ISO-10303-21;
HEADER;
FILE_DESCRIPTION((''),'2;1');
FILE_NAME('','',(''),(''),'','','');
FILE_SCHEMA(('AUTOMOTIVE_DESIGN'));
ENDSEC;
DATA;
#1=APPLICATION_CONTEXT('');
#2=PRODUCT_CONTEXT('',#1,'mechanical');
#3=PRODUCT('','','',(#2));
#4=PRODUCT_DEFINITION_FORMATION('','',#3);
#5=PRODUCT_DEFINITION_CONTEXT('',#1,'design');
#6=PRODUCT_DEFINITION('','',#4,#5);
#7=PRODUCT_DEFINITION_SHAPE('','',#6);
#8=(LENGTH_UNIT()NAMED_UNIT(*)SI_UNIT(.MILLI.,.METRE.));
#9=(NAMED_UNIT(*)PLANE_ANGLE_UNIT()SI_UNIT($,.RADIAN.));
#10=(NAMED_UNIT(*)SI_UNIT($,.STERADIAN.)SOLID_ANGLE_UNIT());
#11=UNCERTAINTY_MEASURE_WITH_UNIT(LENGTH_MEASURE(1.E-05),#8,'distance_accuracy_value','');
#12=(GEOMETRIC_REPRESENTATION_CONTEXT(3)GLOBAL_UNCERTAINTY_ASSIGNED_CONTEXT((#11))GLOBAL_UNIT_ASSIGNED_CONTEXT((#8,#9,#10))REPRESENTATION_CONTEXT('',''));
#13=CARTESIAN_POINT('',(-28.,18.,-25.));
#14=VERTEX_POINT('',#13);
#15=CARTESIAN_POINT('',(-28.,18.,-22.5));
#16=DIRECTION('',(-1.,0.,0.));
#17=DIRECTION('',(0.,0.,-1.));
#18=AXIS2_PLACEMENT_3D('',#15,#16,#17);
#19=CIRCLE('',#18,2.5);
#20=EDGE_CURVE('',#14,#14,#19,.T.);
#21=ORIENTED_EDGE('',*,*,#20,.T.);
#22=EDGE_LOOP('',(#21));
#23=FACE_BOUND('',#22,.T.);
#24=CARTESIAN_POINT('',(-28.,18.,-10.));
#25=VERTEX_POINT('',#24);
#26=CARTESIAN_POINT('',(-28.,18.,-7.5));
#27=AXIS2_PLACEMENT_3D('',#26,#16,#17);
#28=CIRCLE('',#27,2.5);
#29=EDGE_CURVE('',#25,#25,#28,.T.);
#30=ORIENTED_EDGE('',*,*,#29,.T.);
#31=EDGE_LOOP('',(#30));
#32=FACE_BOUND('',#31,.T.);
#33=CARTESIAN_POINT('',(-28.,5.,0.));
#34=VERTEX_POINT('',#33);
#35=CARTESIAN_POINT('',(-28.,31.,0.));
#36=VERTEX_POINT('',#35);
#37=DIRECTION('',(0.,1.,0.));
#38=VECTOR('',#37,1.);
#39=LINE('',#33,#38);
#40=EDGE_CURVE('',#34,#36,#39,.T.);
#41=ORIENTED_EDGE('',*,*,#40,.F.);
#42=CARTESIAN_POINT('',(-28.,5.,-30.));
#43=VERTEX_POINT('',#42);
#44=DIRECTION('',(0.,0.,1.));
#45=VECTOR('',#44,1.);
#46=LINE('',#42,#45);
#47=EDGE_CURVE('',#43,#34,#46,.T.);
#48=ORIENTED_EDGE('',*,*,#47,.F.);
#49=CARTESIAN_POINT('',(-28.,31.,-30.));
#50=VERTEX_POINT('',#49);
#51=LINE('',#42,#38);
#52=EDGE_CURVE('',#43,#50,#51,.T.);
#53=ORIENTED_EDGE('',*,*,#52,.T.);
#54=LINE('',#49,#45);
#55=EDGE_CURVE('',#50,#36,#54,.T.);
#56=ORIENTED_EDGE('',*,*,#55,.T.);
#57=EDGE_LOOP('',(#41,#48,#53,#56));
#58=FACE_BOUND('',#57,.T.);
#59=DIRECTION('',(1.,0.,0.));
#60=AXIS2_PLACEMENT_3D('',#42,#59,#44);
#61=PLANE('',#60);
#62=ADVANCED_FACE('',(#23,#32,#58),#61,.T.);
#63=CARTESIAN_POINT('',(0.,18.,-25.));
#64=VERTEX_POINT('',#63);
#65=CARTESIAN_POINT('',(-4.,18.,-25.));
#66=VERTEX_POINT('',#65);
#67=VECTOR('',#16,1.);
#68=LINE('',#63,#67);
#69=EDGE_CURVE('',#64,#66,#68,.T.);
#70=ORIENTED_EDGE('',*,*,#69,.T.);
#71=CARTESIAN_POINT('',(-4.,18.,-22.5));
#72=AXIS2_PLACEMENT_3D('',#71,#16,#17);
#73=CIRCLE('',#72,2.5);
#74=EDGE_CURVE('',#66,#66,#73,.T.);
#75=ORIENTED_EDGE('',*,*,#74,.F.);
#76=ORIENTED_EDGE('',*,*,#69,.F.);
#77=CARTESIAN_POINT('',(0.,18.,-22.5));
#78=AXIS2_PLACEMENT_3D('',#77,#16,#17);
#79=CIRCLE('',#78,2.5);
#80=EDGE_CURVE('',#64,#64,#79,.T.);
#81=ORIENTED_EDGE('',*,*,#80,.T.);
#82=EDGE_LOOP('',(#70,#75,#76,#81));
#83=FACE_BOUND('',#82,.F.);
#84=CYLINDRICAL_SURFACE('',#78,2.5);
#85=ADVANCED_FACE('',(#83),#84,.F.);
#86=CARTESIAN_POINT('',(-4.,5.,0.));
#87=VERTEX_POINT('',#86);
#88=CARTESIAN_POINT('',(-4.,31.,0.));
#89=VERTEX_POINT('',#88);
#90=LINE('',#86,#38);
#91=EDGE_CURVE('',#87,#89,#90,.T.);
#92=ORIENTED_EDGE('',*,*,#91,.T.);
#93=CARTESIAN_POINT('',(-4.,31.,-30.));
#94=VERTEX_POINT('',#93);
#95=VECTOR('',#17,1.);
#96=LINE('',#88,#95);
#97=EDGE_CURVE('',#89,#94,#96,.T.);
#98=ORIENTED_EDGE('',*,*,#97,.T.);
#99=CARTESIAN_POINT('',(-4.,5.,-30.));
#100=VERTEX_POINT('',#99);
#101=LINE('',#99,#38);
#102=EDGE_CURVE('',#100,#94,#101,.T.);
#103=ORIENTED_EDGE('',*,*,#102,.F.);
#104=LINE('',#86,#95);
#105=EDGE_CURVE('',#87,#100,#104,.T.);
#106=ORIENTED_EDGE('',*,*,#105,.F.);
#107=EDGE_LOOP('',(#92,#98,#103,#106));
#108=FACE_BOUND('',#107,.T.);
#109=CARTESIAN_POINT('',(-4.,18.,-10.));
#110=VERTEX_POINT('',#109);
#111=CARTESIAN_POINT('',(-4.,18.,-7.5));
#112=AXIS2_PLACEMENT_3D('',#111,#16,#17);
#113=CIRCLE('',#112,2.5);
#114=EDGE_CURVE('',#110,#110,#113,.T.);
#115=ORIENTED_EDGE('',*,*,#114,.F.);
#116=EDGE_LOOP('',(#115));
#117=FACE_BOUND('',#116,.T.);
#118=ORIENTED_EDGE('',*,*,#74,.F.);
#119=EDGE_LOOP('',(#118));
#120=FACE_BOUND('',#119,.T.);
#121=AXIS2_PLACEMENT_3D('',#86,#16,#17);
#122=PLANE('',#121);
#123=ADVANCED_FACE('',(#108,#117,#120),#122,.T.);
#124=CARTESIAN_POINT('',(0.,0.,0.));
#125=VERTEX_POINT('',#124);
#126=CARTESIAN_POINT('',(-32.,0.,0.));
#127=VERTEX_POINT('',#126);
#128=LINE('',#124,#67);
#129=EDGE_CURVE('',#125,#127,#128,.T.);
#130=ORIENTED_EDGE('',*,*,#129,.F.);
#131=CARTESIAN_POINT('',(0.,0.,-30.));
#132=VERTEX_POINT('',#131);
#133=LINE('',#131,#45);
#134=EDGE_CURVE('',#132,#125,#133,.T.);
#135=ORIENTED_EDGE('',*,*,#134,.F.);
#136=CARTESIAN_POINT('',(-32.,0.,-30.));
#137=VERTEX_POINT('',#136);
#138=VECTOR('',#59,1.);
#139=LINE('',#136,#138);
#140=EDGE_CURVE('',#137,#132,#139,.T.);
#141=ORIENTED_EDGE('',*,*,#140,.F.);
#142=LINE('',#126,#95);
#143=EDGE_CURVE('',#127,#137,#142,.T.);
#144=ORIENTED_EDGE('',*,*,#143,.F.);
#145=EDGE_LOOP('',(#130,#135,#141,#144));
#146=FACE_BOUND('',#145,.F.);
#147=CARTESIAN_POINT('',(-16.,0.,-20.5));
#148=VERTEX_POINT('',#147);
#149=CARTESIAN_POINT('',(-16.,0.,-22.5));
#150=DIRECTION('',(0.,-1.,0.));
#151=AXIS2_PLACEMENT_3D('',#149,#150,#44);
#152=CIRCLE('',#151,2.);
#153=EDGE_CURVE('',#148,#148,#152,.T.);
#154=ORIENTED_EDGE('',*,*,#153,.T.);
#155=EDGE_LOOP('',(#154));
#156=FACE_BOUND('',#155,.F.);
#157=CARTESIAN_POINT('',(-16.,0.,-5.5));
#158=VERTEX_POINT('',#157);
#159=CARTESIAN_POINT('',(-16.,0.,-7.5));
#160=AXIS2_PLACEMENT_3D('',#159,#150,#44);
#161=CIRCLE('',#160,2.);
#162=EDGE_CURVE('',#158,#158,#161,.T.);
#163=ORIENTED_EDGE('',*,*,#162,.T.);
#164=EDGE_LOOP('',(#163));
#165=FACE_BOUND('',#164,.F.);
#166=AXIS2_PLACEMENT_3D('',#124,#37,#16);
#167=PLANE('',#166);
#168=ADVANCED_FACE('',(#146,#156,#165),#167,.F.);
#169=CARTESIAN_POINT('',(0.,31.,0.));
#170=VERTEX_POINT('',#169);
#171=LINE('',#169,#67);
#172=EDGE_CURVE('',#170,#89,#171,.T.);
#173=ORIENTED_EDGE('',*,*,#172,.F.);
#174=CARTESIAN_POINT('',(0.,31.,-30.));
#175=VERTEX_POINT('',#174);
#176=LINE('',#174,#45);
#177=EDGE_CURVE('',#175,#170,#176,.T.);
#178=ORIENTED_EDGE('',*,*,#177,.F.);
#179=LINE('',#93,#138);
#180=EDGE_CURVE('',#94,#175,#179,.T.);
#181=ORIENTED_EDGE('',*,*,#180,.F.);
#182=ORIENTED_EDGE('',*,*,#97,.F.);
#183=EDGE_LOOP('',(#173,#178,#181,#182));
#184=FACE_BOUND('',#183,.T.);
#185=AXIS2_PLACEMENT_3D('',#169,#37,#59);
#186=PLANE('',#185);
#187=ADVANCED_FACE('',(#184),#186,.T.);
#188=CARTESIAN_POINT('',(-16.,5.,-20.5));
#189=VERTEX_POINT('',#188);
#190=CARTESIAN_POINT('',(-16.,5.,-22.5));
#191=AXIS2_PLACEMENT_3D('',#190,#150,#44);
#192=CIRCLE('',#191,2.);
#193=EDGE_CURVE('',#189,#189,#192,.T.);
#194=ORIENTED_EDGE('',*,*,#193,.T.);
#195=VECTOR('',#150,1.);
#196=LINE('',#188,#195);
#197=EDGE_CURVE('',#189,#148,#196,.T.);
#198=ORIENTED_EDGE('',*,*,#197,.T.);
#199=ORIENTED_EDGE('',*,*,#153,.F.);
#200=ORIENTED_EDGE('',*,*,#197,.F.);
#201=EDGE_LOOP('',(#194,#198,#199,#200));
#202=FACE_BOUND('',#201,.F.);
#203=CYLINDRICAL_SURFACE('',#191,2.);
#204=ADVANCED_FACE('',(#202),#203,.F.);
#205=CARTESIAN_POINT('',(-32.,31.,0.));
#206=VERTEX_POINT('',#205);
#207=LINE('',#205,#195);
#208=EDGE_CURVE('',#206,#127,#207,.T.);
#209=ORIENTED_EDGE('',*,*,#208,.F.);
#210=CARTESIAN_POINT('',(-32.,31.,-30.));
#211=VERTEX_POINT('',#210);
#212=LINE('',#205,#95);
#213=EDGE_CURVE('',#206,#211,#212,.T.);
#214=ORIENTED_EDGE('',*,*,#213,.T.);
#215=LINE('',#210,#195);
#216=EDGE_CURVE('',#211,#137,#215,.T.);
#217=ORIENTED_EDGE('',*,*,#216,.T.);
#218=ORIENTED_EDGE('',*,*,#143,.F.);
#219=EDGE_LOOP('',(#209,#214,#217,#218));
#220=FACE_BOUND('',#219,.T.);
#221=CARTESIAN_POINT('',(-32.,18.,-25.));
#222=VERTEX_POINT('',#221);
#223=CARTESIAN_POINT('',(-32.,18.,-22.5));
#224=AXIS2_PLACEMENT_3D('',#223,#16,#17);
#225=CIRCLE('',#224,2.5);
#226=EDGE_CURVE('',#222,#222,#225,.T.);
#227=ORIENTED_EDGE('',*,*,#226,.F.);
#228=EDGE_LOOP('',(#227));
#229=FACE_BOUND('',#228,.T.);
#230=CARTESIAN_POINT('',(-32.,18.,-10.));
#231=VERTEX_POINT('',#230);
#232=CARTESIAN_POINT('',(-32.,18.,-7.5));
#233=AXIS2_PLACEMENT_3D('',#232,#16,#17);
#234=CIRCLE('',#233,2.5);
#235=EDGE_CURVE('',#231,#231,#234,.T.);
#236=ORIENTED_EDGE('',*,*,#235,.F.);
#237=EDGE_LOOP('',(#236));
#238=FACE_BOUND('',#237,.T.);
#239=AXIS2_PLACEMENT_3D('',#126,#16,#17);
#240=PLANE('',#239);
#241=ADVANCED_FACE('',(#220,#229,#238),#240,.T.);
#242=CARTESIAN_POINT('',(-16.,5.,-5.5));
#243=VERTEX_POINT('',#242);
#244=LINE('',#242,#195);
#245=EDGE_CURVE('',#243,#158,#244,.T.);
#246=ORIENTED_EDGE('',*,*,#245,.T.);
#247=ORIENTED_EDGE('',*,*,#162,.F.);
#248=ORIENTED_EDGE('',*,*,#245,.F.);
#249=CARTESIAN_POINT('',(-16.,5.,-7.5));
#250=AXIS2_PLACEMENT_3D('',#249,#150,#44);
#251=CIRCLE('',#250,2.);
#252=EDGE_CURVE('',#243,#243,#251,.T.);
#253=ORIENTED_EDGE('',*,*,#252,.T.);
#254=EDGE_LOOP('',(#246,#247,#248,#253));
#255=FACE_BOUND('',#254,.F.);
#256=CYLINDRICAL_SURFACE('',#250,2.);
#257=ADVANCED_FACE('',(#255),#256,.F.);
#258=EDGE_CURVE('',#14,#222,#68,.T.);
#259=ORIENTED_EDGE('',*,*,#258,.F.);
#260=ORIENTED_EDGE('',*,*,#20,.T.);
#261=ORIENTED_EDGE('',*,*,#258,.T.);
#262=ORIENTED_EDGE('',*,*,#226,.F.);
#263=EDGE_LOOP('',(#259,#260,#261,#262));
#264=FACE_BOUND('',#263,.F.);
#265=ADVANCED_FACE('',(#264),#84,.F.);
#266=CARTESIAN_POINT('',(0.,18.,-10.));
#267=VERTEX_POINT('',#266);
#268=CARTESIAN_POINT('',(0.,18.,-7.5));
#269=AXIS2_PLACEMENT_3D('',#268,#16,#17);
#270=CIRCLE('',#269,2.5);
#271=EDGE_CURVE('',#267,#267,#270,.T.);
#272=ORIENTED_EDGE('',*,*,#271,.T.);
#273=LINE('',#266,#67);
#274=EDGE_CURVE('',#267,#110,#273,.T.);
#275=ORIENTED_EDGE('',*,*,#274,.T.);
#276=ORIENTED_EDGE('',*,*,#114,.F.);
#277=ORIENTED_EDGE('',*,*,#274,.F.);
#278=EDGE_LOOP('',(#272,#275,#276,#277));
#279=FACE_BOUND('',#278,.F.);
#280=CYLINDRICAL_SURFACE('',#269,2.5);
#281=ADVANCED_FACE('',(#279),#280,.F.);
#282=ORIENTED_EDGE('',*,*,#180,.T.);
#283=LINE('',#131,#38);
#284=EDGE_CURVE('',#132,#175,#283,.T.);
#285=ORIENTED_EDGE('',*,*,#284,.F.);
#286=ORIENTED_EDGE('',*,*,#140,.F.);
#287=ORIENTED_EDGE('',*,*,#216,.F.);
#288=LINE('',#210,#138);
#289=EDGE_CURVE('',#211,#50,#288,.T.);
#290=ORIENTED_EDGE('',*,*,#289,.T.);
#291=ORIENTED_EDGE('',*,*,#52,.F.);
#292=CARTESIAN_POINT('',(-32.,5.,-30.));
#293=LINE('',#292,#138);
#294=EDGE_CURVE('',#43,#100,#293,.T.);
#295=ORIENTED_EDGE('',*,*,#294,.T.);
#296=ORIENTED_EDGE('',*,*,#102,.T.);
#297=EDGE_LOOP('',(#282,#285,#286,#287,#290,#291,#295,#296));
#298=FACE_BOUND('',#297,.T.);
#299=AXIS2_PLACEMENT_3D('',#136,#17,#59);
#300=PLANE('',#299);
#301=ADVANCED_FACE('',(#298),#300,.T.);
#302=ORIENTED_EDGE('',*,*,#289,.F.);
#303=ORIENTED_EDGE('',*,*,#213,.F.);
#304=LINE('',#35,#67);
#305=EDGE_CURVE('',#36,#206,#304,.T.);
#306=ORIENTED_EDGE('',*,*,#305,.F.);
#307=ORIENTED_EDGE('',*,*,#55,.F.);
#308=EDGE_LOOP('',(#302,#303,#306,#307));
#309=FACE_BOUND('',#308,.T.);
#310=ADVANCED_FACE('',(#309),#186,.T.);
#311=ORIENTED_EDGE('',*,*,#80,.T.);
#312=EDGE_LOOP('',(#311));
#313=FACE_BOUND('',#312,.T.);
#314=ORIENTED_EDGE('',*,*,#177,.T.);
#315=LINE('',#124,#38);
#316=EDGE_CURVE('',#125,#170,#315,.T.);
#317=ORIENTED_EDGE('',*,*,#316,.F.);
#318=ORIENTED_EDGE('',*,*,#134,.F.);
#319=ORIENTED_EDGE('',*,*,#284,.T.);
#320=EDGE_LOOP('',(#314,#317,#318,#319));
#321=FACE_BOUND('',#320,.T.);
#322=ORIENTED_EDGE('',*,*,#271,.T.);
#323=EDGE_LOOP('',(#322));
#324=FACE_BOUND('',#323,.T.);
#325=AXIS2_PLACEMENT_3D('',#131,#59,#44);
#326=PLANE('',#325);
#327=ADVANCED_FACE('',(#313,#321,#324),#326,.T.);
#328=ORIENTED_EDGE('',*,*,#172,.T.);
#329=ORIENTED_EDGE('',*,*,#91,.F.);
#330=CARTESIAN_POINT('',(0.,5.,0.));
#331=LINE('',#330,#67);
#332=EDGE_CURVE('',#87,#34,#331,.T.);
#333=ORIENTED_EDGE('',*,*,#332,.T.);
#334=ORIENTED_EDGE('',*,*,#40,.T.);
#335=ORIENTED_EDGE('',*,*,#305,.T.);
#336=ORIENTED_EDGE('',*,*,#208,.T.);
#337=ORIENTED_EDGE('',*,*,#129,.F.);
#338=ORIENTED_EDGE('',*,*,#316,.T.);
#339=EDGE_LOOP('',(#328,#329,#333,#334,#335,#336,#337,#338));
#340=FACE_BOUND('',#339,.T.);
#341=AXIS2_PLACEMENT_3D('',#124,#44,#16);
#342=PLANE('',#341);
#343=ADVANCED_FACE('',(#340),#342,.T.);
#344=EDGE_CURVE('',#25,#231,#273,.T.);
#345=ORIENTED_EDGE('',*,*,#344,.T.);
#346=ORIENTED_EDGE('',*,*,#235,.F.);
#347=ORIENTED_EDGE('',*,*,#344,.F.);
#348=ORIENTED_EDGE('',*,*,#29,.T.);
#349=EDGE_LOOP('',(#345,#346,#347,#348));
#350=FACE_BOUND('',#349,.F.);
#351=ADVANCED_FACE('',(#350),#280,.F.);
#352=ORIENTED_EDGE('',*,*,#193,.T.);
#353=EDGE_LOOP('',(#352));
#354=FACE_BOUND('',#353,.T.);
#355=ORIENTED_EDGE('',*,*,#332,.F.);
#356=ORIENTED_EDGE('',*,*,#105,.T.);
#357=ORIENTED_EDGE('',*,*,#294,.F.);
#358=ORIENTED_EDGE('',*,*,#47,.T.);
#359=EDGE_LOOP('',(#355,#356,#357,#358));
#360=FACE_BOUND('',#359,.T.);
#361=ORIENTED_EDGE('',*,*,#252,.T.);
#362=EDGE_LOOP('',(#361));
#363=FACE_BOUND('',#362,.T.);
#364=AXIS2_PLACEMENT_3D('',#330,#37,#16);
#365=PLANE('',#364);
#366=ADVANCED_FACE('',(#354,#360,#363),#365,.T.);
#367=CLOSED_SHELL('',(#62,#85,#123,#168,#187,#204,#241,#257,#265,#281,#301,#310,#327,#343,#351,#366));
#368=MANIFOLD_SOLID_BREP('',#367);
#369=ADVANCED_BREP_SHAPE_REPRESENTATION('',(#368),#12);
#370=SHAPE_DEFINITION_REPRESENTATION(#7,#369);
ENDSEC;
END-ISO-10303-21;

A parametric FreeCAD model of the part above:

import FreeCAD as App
import Part
import Sketcher
Q = App.Units.Quantity


def add_polygon(sketch, points):
    """Adds a closed chain of lines whose ends are joined by coincident constraints."""
    first, n = sketch.GeometryCount, len(points)
    for a, b in zip(points, points[1:] + points[:1]):
        sketch.addGeometry(Part.LineSegment(App.Vector(*a, 0), App.Vector(*b, 0)), False)
    for i in range(n):
        sketch.addConstraint(Sketcher.Constraint("Coincident", first + i, 2, first + (i + 1) % n, 1))

doc = App.newDocument("Part")
body = doc.addObject("PartDesign::Body", "Body")

# Sketch on XZ plane
sketch1 = doc.addObject("Sketcher::SketchObject", "Sketch")
body.addObject(sketch1)
sketch1.AttachmentSupport = (doc.XZ_Plane, [""])
sketch1.MapMode = "FlatFace"
add_polygon(sketch1, [(-32, 0), (0, 0), (0, -30), (-32, -30)])  # lines 0-3
sketch1.addConstraint([
    Sketcher.Constraint("Horizontal", 0),
    Sketcher.Constraint("Vertical", 1),
    Sketcher.Constraint("Horizontal", 2),
    Sketcher.Constraint("Vertical", 3),
    Sketcher.Constraint("Coincident", 0, 2, -1, 1),
    Sketcher.Constraint("DistanceX", 0, 1, 0, 2, Q("32 mm")),
    Sketcher.Constraint("DistanceY", 1, 2, 1, 1, Q("30 mm")),
])
pad1 = doc.addObject("PartDesign::Pad", "Pad")
body.addObject(pad1)
pad1.Profile = sketch1
pad1.Length = 5
pad1.Reversed = True

# Sketch on XZ plane
sketch2 = doc.addObject("Sketcher::SketchObject", "Sketch001")
body.addObject(sketch2)
sketch2.AttachmentSupport = (doc.XZ_Plane, [""])
sketch2.MapMode = "FlatFace"
sketch2.AttachmentOffset = App.Placement(App.Vector(0, 0, -5), App.Rotation())
add_polygon(sketch2, [(-28, -30), (-32, -30), (-32, 0), (-28, 0)])  # lines 0-3
add_polygon(sketch2, [(0, -30), (-4, -30), (-4, 0), (0, 0)])  # lines 4-7
sketch2.addConstraint([
    Sketcher.Constraint("Horizontal", 0),
    Sketcher.Constraint("Vertical", 1),
    Sketcher.Constraint("Horizontal", 2),
    Sketcher.Constraint("Vertical", 3),
    Sketcher.Constraint("Horizontal", 4),
    Sketcher.Constraint("Vertical", 5),
    Sketcher.Constraint("Horizontal", 6),
    Sketcher.Constraint("Vertical", 7),
    Sketcher.Constraint("Coincident", 6, 2, -1, 1),
    Sketcher.Constraint("PointOnObject", 1, 2, -1),
    Sketcher.Constraint("Horizontal", 3, 2, 4, 2),
    Sketcher.Constraint("Equal", 2, 4),
    Sketcher.Constraint("DistanceX", 3, 2, 4, 2, Q("24 mm")),
    Sketcher.Constraint("DistanceX", 0, 2, 0, 1, Q("4 mm")),
    Sketcher.Constraint("DistanceY", 1, 1, 1, 2, Q("30 mm")),
])
pad2 = doc.addObject("PartDesign::Pad", "Pad001")
body.addObject(pad2)
pad2.Profile = sketch2
pad2.Length = 26
pad2.Reversed = True

# Sketch on YZ plane
sketch3 = doc.addObject("Sketcher::SketchObject", "Sketch002")
body.addObject(sketch3)
sketch3.AttachmentSupport = (doc.YZ_Plane, [""])
sketch3.MapMode = "FlatFace"
sketch3.addGeometry([
    Part.Circle(App.Vector(18, -7.5, 0), App.Vector(0, 0, 1), 2.5),
    Part.Circle(App.Vector(18, -22.5, 0), App.Vector(0, 0, 1), 2.5),
], False)
sketch3.addConstraint([
    Sketcher.Constraint("Equal", 0, 1),
    Sketcher.Constraint("Vertical", 0, 3, 1, 3),
    Sketcher.Constraint("Diameter", 0, Q("5 mm")),
    Sketcher.Constraint("DistanceX", -1, 1, 0, 3, Q("18 mm")),
    Sketcher.Constraint("DistanceY", 1, 3, 0, 3, Q("15 mm")),
    Sketcher.Constraint("DistanceY", 0, 3, -1, 1, Q("7.5 mm")),
])
doc.recompute()
hole = doc.addObject("PartDesign::Hole", "Hole")
body.addObject(hole)
hole.Profile = sketch3
hole.ThreadType = "None"
hole.Diameter = 5
hole.DepthType = "ThroughAll"

# Sketch on XZ plane
sketch4 = doc.addObject("Sketcher::SketchObject", "Sketch003")
body.addObject(sketch4)
sketch4.AttachmentSupport = (doc.XZ_Plane, [""])
sketch4.MapMode = "FlatFace"
sketch4.AttachmentOffset = App.Placement(App.Vector(0, 0, -5), App.Rotation())
sketch4.addGeometry([
    Part.Circle(App.Vector(-16, -22.5, 0), App.Vector(0, 0, 1), 2),
    Part.Circle(App.Vector(-16, -7.5, 0), App.Vector(0, 0, 1), 2),
], False)
sketch4.addConstraint([
    Sketcher.Constraint("Equal", 0, 1),
    Sketcher.Constraint("Vertical", 0, 3, 1, 3),
    Sketcher.Constraint("Diameter", 0, Q("4 mm")),
    Sketcher.Constraint("DistanceX", 0, 3, -1, 1, Q("16 mm")),
    Sketcher.Constraint("DistanceY", 0, 3, 1, 3, Q("15 mm")),
    Sketcher.Constraint("DistanceY", 0, 3, -1, 1, Q("22.5 mm")),
])
doc.recompute()
hole2 = doc.addObject("PartDesign::Hole", "Hole001")
body.addObject(hole2)
hole2.Profile = sketch4
hole2.ThreadType = "None"
hole2.Diameter = 4
hole2.DepthType = "Dimension"
hole2.Depth = 5
hole2.DrillPoint = "Flat"
hole2.Reversed = True

doc.recompute()
